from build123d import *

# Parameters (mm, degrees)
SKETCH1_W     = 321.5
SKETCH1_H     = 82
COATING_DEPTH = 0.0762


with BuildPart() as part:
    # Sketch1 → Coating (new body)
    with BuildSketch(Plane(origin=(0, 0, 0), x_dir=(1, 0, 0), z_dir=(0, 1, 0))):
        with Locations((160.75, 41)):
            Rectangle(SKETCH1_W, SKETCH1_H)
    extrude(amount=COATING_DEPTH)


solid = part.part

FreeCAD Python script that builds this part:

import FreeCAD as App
import Part
import Sketcher
Q = App.Units.Quantity


def add_polygon(sketch, points):
    """Adds a closed chain of lines whose ends are joined by coincident constraints."""
    first, n = sketch.GeometryCount, len(points)
    for a, b in zip(points, points[1:] + points[:1]):
        sketch.addGeometry(Part.LineSegment(App.Vector(*a, 0), App.Vector(*b, 0)), False)
    for i in range(n):
        sketch.addConstraint(Sketcher.Constraint("Coincident", first + i, 2, first + (i + 1) % n, 1))

doc = App.newDocument("Part")
body = doc.addObject("PartDesign::Body", "Body")

# Sketch on XZ plane
sketch1 = body.newObject("Sketcher::SketchObject", "Sketch")
sketch1.AttachmentSupport = (doc.getObject("XZ_Plane"), [""])
sketch1.MapMode = "FlatFace"
add_polygon(sketch1, [(0, -82), (0, 0), (321.5, 0), (321.5, -82)])  # lines 0-3
sketch1.addConstraint(Sketcher.Constraint("Vertical", 0))
sketch1.addConstraint(Sketcher.Constraint("Horizontal", 1))
sketch1.addConstraint(Sketcher.Constraint("Vertical", 2))
sketch1.addConstraint(Sketcher.Constraint("Horizontal", 3))
sketch1.addConstraint(Sketcher.Constraint("Coincident", 0, 2, -1, 1))
sketch1.addConstraint(Sketcher.Constraint("DistanceY", 0, 1, 0, 2, Q("82 mm")))
sketch1.addConstraint(Sketcher.Constraint("DistanceX", 1, 1, 1, 2, Q("321.5 mm")))
pad1 = body.newObject("PartDesign::Pad", "Pad")
pad1.Profile = sketch1
pad1.Length = 0.0762
pad1.Reversed = True

doc.recompute()
